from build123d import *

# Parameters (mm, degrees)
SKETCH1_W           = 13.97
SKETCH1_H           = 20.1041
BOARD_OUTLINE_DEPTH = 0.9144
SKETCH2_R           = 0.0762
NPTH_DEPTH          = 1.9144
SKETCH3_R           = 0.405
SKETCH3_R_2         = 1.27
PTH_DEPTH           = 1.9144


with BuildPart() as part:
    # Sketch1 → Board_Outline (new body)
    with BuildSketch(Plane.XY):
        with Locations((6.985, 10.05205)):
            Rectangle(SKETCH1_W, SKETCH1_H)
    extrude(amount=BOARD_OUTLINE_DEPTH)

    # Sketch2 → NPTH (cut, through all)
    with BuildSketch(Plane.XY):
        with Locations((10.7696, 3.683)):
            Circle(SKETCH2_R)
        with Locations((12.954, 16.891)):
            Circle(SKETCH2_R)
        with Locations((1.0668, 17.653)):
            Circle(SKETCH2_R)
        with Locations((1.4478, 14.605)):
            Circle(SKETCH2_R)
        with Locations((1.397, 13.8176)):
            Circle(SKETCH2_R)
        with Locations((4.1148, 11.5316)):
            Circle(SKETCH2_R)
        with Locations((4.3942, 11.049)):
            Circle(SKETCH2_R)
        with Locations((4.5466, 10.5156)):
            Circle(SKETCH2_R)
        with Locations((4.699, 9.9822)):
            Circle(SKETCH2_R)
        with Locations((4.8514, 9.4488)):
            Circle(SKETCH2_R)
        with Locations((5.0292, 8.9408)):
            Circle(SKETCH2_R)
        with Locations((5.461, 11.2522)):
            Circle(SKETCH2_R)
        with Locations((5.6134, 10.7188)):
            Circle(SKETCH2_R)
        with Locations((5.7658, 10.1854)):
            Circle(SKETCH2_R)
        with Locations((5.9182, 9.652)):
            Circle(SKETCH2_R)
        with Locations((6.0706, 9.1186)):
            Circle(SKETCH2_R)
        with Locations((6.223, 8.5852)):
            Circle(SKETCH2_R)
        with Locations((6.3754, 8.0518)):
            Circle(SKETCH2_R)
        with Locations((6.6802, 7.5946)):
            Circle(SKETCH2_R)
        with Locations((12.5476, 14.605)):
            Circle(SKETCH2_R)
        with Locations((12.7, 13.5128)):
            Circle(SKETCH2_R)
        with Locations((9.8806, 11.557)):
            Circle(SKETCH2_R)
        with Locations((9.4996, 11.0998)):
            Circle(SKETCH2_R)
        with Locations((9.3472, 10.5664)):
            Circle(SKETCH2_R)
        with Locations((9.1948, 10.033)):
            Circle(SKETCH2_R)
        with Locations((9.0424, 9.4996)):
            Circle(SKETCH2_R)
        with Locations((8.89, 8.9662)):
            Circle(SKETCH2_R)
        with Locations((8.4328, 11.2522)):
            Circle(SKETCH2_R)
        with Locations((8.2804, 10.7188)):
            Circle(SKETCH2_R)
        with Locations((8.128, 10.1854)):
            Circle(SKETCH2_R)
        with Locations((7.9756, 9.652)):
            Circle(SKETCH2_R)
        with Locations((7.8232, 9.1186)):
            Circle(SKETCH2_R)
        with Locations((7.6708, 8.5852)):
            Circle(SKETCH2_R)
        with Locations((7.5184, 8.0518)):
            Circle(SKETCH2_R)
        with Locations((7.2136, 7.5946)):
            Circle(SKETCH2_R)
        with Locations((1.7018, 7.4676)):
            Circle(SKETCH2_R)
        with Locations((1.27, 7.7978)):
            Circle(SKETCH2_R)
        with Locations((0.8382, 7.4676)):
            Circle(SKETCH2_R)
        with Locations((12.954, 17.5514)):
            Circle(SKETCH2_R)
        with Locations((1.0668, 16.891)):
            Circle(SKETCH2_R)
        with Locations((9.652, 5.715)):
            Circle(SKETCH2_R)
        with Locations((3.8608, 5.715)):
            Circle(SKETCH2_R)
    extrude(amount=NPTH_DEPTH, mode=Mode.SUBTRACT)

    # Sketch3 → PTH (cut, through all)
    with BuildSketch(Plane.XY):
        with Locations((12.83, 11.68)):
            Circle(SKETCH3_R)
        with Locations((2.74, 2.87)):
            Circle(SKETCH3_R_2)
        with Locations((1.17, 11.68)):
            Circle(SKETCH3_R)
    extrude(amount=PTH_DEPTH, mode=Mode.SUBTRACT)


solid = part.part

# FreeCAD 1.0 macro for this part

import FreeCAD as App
import Part
import Sketcher
from FreeCAD import Vector
Q = App.Units.Quantity

doc = App.newDocument("Part")
body = doc.addObject("PartDesign::Body", "Body")

# Sketch on XY plane
sketch1 = doc.addObject("Sketcher::SketchObject", "Sketch")
body.addObject(sketch1)
sketch1.AttachmentSupport = (doc.XY_Plane, [""])
sketch1.MapMode = "FlatFace"
sketch1.addGeometry([
    Part.LineSegment(Vector(0, 20.1041, 0), Vector(0, 0, 0)),
    Part.LineSegment(Vector(0, 0, 0), Vector(13.97, 0, 0)),
    Part.LineSegment(Vector(13.97, 0, 0), Vector(13.97, 20.1041, 0)),
    Part.LineSegment(Vector(13.97, 20.1041, 0), Vector(0, 20.1041, 0)),
], False)
sketch1.addConstraint([
    Sketcher.Constraint("Coincident", 0, 2, 1, 1),
    Sketcher.Constraint("Coincident", 1, 2, 2, 1),
    Sketcher.Constraint("Coincident", 2, 2, 3, 1),
    Sketcher.Constraint("Coincident", 3, 2, 0, 1),
    Sketcher.Constraint("Vertical", 0),
    Sketcher.Constraint("Horizontal", 1),
    Sketcher.Constraint("Vertical", 2),
    Sketcher.Constraint("Horizontal", 3),
    Sketcher.Constraint("Coincident", 0, 2, -1, 1),
    Sketcher.Constraint("DistanceX", 1, 1, 1, 2, Q("0.55 in")),
    Sketcher.Constraint("DistanceY", 0, 2, 0, 1, Q("0.7915 in")),
])
pad1 = doc.addObject("PartDesign::Pad", "Pad")
body.addObject(pad1)
pad1.Profile = sketch1
pad1.Length = Q("0.036 in")

# Sketch on XY plane
sketch2 = doc.addObject("Sketcher::SketchObject", "Sketch001")
body.addObject(sketch2)
sketch2.AttachmentSupport = (doc.XY_Plane, [""])
sketch2.MapMode = "FlatFace"
sketch2.addGeometry([
    Part.Circle(Vector(10.7696, 3.683, 0), Vector(0, 0, 1), 0.0762),  # 0
    Part.Circle(Vector(12.954, 16.891, 0), Vector(0, 0, 1), 0.0762),  # 1
    Part.Circle(Vector(1.0668, 17.653, 0), Vector(0, 0, 1), 0.0762),  # 2
    Part.Circle(Vector(1.4478, 14.605, 0), Vector(0, 0, 1), 0.0762),  # 3
    Part.Circle(Vector(1.397, 13.8176, 0), Vector(0, 0, 1), 0.0762),  # 4
    Part.Circle(Vector(4.1148, 11.5316, 0), Vector(0, 0, 1), 0.0762),  # 5
    Part.Circle(Vector(4.3942, 11.049, 0), Vector(0, 0, 1), 0.0762),  # 6
    Part.Circle(Vector(4.5466, 10.5156, 0), Vector(0, 0, 1), 0.0762),  # 7
    Part.Circle(Vector(4.699, 9.9822, 0), Vector(0, 0, 1), 0.0762),  # 8
    Part.Circle(Vector(4.8514, 9.4488, 0), Vector(0, 0, 1), 0.0762),  # 9
    Part.Circle(Vector(5.0292, 8.9408, 0), Vector(0, 0, 1), 0.0762),  # 10
    Part.Circle(Vector(5.461, 11.2522, 0), Vector(0, 0, 1), 0.0762),  # 11
    Part.Circle(Vector(5.6134, 10.7188, 0), Vector(0, 0, 1), 0.0762),  # 12
    Part.Circle(Vector(5.7658, 10.1854, 0), Vector(0, 0, 1), 0.0762),  # 13
    Part.Circle(Vector(5.9182, 9.652, 0), Vector(0, 0, 1), 0.0762),  # 14
    Part.Circle(Vector(6.0706, 9.1186, 0), Vector(0, 0, 1), 0.0762),  # 15
    Part.Circle(Vector(6.223, 8.5852, 0), Vector(0, 0, 1), 0.0762),  # 16
    Part.Circle(Vector(6.3754, 8.0518, 0), Vector(0, 0, 1), 0.0762),  # 17
    Part.Circle(Vector(6.6802, 7.5946, 0), Vector(0, 0, 1), 0.0762),  # 18
    Part.Circle(Vector(12.5476, 14.605, 0), Vector(0, 0, 1), 0.0762),  # 19
    Part.Circle(Vector(12.7, 13.5128, 0), Vector(0, 0, 1), 0.0762),  # 20
    Part.Circle(Vector(9.8806, 11.557, 0), Vector(0, 0, 1), 0.0762),  # 21
    Part.Circle(Vector(9.4996, 11.0998, 0), Vector(0, 0, 1), 0.0762),  # 22
    Part.Circle(Vector(9.3472, 10.5664, 0), Vector(0, 0, 1), 0.0762),  # 23
    Part.Circle(Vector(9.1948, 10.033, 0), Vector(0, 0, 1), 0.0762),  # 24
    Part.Circle(Vector(9.0424, 9.4996, 0), Vector(0, 0, 1), 0.0762),  # 25
    Part.Circle(Vector(8.89, 8.9662, 0), Vector(0, 0, 1), 0.0762),  # 26
    Part.Circle(Vector(8.4328, 11.2522, 0), Vector(0, 0, 1), 0.0762),  # 27
    Part.Circle(Vector(8.2804, 10.7188, 0), Vector(0, 0, 1), 0.0762),  # 28
    Part.Circle(Vector(8.128, 10.1854, 0), Vector(0, 0, 1), 0.0762),  # 29
    Part.Circle(Vector(7.9756, 9.652, 0), Vector(0, 0, 1), 0.0762),  # 30
    Part.Circle(Vector(7.8232, 9.1186, 0), Vector(0, 0, 1), 0.0762),  # 31
    Part.Circle(Vector(7.6708, 8.5852, 0), Vector(0, 0, 1), 0.0762),  # 32
    Part.Circle(Vector(7.5184, 8.0518, 0), Vector(0, 0, 1), 0.0762),  # 33
    Part.Circle(Vector(7.2136, 7.5946, 0), Vector(0, 0, 1), 0.0762),  # 34
    Part.Circle(Vector(1.7018, 7.4676, 0), Vector(0, 0, 1), 0.0762),  # 35
    Part.Circle(Vector(1.27, 7.7978, 0), Vector(0, 0, 1), 0.0762),  # 36
    Part.Circle(Vector(0.8382, 7.4676, 0), Vector(0, 0, 1), 0.0762),  # 37
    Part.Circle(Vector(12.954, 17.5514, 0), Vector(0, 0, 1), 0.0762),  # 38
    Part.Circle(Vector(1.0668, 16.891, 0), Vector(0, 0, 1), 0.0762),  # 39
    Part.Circle(Vector(9.652, 5.715, 0), Vector(0, 0, 1), 0.0762),  # 40
    Part.Circle(Vector(3.8608, 5.715, 0), Vector(0, 0, 1), 0.0762),  # 41
], False)
sketch2.addConstraint([
    Sketcher.Constraint("Equal", 0, 1),
    Sketcher.Constraint("Equal", 1, 2),
    Sketcher.Constraint("Equal", 2, 3),
    Sketcher.Constraint("Equal", 3, 4),
    Sketcher.Constraint("Equal", 4, 5),
    Sketcher.Constraint("Equal", 5, 6),
    Sketcher.Constraint("Equal", 6, 7),
    Sketcher.Constraint("Equal", 7, 8),
    Sketcher.Constraint("Equal", 8, 9),
    Sketcher.Constraint("Equal", 9, 10),
    Sketcher.Constraint("Equal", 10, 11),
    Sketcher.Constraint("Equal", 11, 12),
    Sketcher.Constraint("Equal", 12, 13),
    Sketcher.Constraint("Equal", 13, 14),
    Sketcher.Constraint("Equal", 14, 15),
    Sketcher.Constraint("Equal", 15, 16),
    Sketcher.Constraint("Equal", 16, 17),
    Sketcher.Constraint("Equal", 17, 18),
    Sketcher.Constraint("Equal", 18, 19),
    Sketcher.Constraint("Equal", 19, 20),
    Sketcher.Constraint("Equal", 20, 21),
    Sketcher.Constraint("Equal", 21, 22),
    Sketcher.Constraint("Equal", 22, 23),
    Sketcher.Constraint("Equal", 23, 24),
    Sketcher.Constraint("Equal", 24, 25),
    Sketcher.Constraint("Equal", 25, 26),
    Sketcher.Constraint("Equal", 26, 27),
    Sketcher.Constraint("Equal", 27, 28),
    Sketcher.Constraint("Equal", 28, 29),
    Sketcher.Constraint("Equal", 29, 30),
    Sketcher.Constraint("Equal", 30, 31),
    Sketcher.Constraint("Equal", 31, 32),
    Sketcher.Constraint("Equal", 32, 33),
    Sketcher.Constraint("Equal", 33, 34),
    Sketcher.Constraint("Equal", 34, 35),
    Sketcher.Constraint("Equal", 35, 36),
    Sketcher.Constraint("Equal", 36, 37),
    Sketcher.Constraint("Equal", 37, 38),
    Sketcher.Constraint("Equal", 38, 39),
    Sketcher.Constraint("Equal", 39, 40),
    Sketcher.Constraint("Equal", 40, 41),
    Sketcher.Constraint("Horizontal", 3, 3, 19, 3),
    Sketcher.Constraint("Horizontal", 11, 3, 27, 3),
    Sketcher.Constraint("Horizontal", 12, 3, 28, 3),
    Sketcher.Constraint("Horizontal", 13, 3, 29, 3),
    Sketcher.Constraint("Horizontal", 14, 3, 30, 3),
    Sketcher.Constraint("Horizontal", 15, 3, 31, 3),
    Sketcher.Constraint("Horizontal", 16, 3, 32, 3),
    Sketcher.Constraint("Horizontal", 17, 3, 33, 3),
    Sketcher.Constraint("Horizontal", 18, 3, 34, 3),
    Sketcher.Constraint("Horizontal", 35, 3, 37, 3),
    Sketcher.Constraint("Horizontal", 1, 3, 39, 3),
    Sketcher.Constraint("Horizontal", 40, 3, 41, 3),
    Sketcher.Constraint("Vertical", 1, 3, 38, 3),
    Sketcher.Constraint("Vertical", 2, 3, 39, 3),
    Sketcher.Constraint("Diameter", 0, Q("0.006 in")),
    Sketcher.Constraint("DistanceX", -1, 1, 20, 3, Q("0.5 in")),
    Sketcher.Constraint("DistanceX", -1, 1, 1, 3, Q("0.51 in")),
    Sketcher.Constraint("DistanceY", -1, 1, 14, 3, Q("0.38 in")),
    Sketcher.Constraint("DistanceX", -1, 1, 26, 3, Q("0.35 in")),
    Sketcher.Constraint("DistanceX", -1, 1, 29, 3, Q("0.32 in")),
    Sketcher.Constraint("DistanceX", -1, 1, 36, 3, Q("0.05 in")),
    Sketcher.Constraint("DistanceX", -1, 1, 40, 3, Q("0.38 in")),
    Sketcher.Constraint("DistanceY", 0, 3, 1, 3, Q("0.52 in")),
    Sketcher.Constraint("DistanceY", 1, 3, 2, 3, Q("0.03 in")),
    Sketcher.Constraint("DistanceY", 3, 3, 2, 3, Q("0.12 in")),
    Sketcher.Constraint("DistanceY", 5, 3, 4, 3, Q("0.09 in")),
    Sketcher.Constraint("DistanceX", 2, 3, 5, 3, Q("0.12 in")),
    Sketcher.Constraint("DistanceY", 6, 3, 3, 3, Q("0.14 in")),
    Sketcher.Constraint("DistanceY", 7, 3, 5, 3, Q("0.04 in")),
    Sketcher.Constraint("DistanceX", 4, 3, 8, 3, Q("0.13 in")),
    Sketcher.Constraint("DistanceY", 10, 3, 9, 3, Q("0.02 in")),
    Sketcher.Constraint("DistanceX", 8, 3, 11, 3, Q("0.03 in")),
    Sketcher.Constraint("DistanceY", 8, 3, 11, 3, Q("0.05 in")),
    Sketcher.Constraint("DistanceX", 9, 3, 12, 3, Q("0.03 in")),
    Sketcher.Constraint("DistanceY", 9, 3, 12, 3, Q("0.05 in")),
    Sketcher.Constraint("DistanceX", 9, 3, 17, 3, Q("0.06 in")),
    Sketcher.Constraint("DistanceY", 18, 3, 15, 3, Q("0.06 in")),
    Sketcher.Constraint("DistanceX", 14, 3, 18, 3, Q("0.03 in")),
    Sketcher.Constraint("DistanceY", 12, 3, 20, 3, Q("0.11 in")),
    Sketcher.Constraint("DistanceY", 21, 3, 19, 3, Q("0.12 in")),
    Sketcher.Constraint("DistanceY", 24, 3, 21, 3, Q("0.06 in")),
    Sketcher.Constraint("DistanceX", 27, 3, 24, 3, Q("0.03 in")),
    Sketcher.Constraint("DistanceX", 28, 3, 25, 3, Q("0.03 in")),
    Sketcher.Constraint("DistanceY", 35, 3, 7, 3, Q("0.12 in")),
    Sketcher.Constraint("DistanceY", 0, 3, 40, 3, Q("0.08 in")),
    Sketcher.Constraint("DistanceX", -1, 1, 0, 3, Q("0.424 in")),
    Sketcher.Constraint("DistanceY", -1, 1, 0, 3, Q("0.145 in")),
    Sketcher.Constraint("DistanceX", -1, 1, 2, 3, Q("0.042 in")),
    Sketcher.Constraint("DistanceX", -1, 1, 3, 3, Q("0.057 in")),
    Sketcher.Constraint("DistanceX", -1, 1, 4, 3, Q("0.055 in")),
    Sketcher.Constraint("DistanceY", -1, 1, 4, 3, Q("0.544 in")),
    Sketcher.Constraint("DistanceX", -1, 1, 6, 3, Q("0.173 in")),
    Sketcher.Constraint("DistanceX", -1, 1, 7, 3, Q("0.179 in")),
    Sketcher.Constraint("DistanceY", -1, 1, 8, 3, Q("0.393 in")),
    Sketcher.Constraint("DistanceX", -1, 1, 9, 3, Q("0.191 in")),
    Sketcher.Constraint("DistanceY", -1, 1, 9, 3, Q("0.372 in")),
    Sketcher.Constraint("DistanceX", -1, 1, 10, 3, Q("0.198 in")),
    Sketcher.Constraint("DistanceX", -1, 1, 13, 3, Q("0.227 in")),
    Sketcher.Constraint("DistanceY", -1, 1, 13, 3, Q("0.401 in")),
    Sketcher.Constraint("DistanceX", -1, 1, 14, 3, Q("0.233 in")),
    Sketcher.Constraint("DistanceX", -1, 1, 15, 3, Q("0.239 in")),
    Sketcher.Constraint("DistanceY", -1, 1, 15, 3, Q("0.359 in")),
    Sketcher.Constraint("DistanceX", -1, 1, 16, 3, Q("0.245 in")),
    Sketcher.Constraint("DistanceY", -1, 1, 16, 3, Q("0.338 in")),
    Sketcher.Constraint("DistanceY", -1, 1, 17, 3, Q("0.317 in")),
    Sketcher.Constraint("DistanceX", -1, 1, 19, 3, Q("0.494 in")),
    Sketcher.Constraint("DistanceX", -1, 1, 21, 3, Q("0.389 in")),
    Sketcher.Constraint("DistanceX", -1, 1, 22, 3, Q("0.374 in")),
    Sketcher.Constraint("DistanceY", -1, 1, 22, 3, Q("0.437 in")),
    Sketcher.Constraint("DistanceX", -1, 1, 23, 3, Q("0.368 in")),
    Sketcher.Constraint("DistanceY", -1, 1, 23, 3, Q("0.416 in")),
    Sketcher.Constraint("DistanceX", -1, 1, 24, 3, Q("0.362 in")),
    Sketcher.Constraint("DistanceX", -1, 1, 25, 3, Q("0.356 in")),
    Sketcher.Constraint("DistanceY", -1, 1, 25, 3, Q("0.374 in")),
    Sketcher.Constraint("DistanceY", -1, 1, 26, 3, Q("0.353 in")),
    Sketcher.Constraint("DistanceX", -1, 1, 30, 3, Q("0.314 in")),
    Sketcher.Constraint("DistanceX", -1, 1, 31, 3, Q("0.308 in")),
    Sketcher.Constraint("DistanceX", -1, 1, 32, 3, Q("0.302 in")),
    Sketcher.Constraint("DistanceX", -1, 1, 33, 3, Q("0.296 in")),
    Sketcher.Constraint("DistanceX", -1, 1, 34, 3, Q("0.284 in")),
    Sketcher.Constraint("DistanceX", -1, 1, 35, 3, Q("0.067 in")),
    Sketcher.Constraint("DistanceY", -1, 1, 36, 3, Q("0.307 in")),
    Sketcher.Constraint("DistanceX", -1, 1, 37, 3, Q("0.033 in")),
    Sketcher.Constraint("DistanceY", -1, 1, 38, 3, Q("0.691 in")),
    Sketcher.Constraint("DistanceX", -1, 1, 41, 3, Q("0.152 in")),
])
pocket1 = doc.addObject("PartDesign::Pocket", "Pocket")
body.addObject(pocket1)
pocket1.Profile = sketch2
pocket1.Type = "ThroughAll"
pocket1.Reversed = True

# Sketch on XY plane
sketch3 = doc.addObject("Sketcher::SketchObject", "Sketch002")
body.addObject(sketch3)
sketch3.AttachmentSupport = (doc.XY_Plane, [""])
sketch3.MapMode = "FlatFace"
sketch3.addGeometry([
    Part.Circle(Vector(12.83, 11.68, 0), Vector(0, 0, 1), 0.405),
    Part.Circle(Vector(2.74, 2.87, 0), Vector(0, 0, 1), 1.27),
    Part.Circle(Vector(1.17, 11.68, 0), Vector(0, 0, 1), 0.405),
], False)
sketch3.addConstraint([
    Sketcher.Constraint("Equal", 0, 2),
    Sketcher.Constraint("Horizontal", 0, 3, 2, 3),
    Sketcher.Constraint("Diameter", 1, Q("0.1 in")),
    Sketcher.Constraint("Diameter", 0, Q("0.81 mm")),
    Sketcher.Constraint("DistanceX", -1, 1, 0, 3, Q("12.83 mm")),
    Sketcher.Constraint("DistanceY", -1, 1, 0, 3, Q("11.68 mm")),
    Sketcher.Constraint("DistanceX", -1, 1, 1, 3, Q("2.74 mm")),
    Sketcher.Constraint("DistanceY", -1, 1, 1, 3, Q("2.87 mm")),
    Sketcher.Constraint("DistanceX", -1, 1, 2, 3, Q("1.17 mm")),
])
pocket2 = doc.addObject("PartDesign::Pocket", "Pocket001")
body.addObject(pocket2)
pocket2.Profile = sketch3
pocket2.Type = "ThroughAll"
pocket2.Reversed = True

doc.recompute()
